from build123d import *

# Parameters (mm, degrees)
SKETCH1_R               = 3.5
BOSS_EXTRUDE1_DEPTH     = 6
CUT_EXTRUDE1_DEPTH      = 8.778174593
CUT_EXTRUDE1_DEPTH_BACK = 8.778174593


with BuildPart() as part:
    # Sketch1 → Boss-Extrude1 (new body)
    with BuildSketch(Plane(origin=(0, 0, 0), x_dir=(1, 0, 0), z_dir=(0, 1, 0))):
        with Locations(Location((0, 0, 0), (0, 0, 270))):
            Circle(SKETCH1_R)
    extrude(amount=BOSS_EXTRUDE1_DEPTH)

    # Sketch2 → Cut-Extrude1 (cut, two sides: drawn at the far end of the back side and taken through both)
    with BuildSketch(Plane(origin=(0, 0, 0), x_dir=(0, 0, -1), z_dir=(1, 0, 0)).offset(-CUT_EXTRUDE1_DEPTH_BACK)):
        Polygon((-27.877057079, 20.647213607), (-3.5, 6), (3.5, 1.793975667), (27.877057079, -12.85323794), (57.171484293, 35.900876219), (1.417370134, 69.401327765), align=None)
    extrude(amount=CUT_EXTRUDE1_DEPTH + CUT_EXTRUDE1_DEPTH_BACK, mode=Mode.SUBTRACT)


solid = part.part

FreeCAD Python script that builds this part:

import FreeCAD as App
import Part
import Sketcher
from FreeCAD import Vector
Q = App.Units.Quantity

doc = App.newDocument("Part")
body = doc.addObject("PartDesign::Body", "Body")

sketch1 = body.newObject("Sketcher::SketchObject", "Sketch")
sketch1.AttachmentSupport = (doc.getObject("XZ_Plane"), [""])
sketch1.MapMode = "FlatFace"
sketch1.addGeometry(Part.Circle(Vector(0, 0, 0), Vector(0, 0, 1), 3.5), False)
sketch1.addConstraint(Sketcher.Constraint("Coincident", 0, 3, -1, 1))
sketch1.addConstraint(Sketcher.Constraint("Diameter", 0, Q("7 mm")))
pad1 = body.newObject("PartDesign::Pad", "Pad")
pad1.Profile = sketch1
pad1.Length = 6
pad1.Reversed = True

sketch2 = body.newObject("Sketcher::SketchObject", "Sketch001")
sketch2.AttachmentSupport = (doc.getObject("YZ_Plane"), [""])
sketch2.MapMode = "FlatFace"
sketch2.addGeometry(Part.LineSegment(Vector(21, 28, 0), Vector(6, 4, 0)), False)
sketch2.addGeometry(Part.LineSegment(Vector(6, 4, 0), Vector(2, -4, 0)), False)
sketch2.addGeometry(Part.LineSegment(Vector(2, -4, 0), Vector(-13, -28, 0)), False)
sketch2.addGeometry(Part.LineSegment(Vector(-13, -28, 0), Vector(36, -57, 0)), False)
sketch2.addGeometry(Part.LineSegment(Vector(36, -57, 0), Vector(69, -1, 0)), False)
sketch2.addGeometry(Part.LineSegment(Vector(69, -1, 0), Vector(21, 28, 0)), False)
sketch2.addConstraint(Sketcher.Constraint("Coincident", 0, 2, 1, 1))
sketch2.addConstraint(Sketcher.Constraint("Coincident", 1, 2, 2, 1))
sketch2.addConstraint(Sketcher.Constraint("Coincident", 2, 2, 3, 1))
sketch2.addConstraint(Sketcher.Constraint("Coincident", 3, 2, 4, 1))
sketch2.addConstraint(Sketcher.Constraint("Coincident", 4, 2, 5, 1))
sketch2.addConstraint(Sketcher.Constraint("Coincident", 5, 2, 0, 1))
sketch2.addConstraint(Sketcher.Constraint("Parallel", 0, 1))
sketch2.addConstraint(Sketcher.Constraint("Parallel", 1, 2))
sketch2.addConstraint(Sketcher.Constraint("Perpendicular", 2, 3))
sketch2.addConstraint(Sketcher.Constraint("Perpendicular", 3, 4))
sketch2.addConstraint(Sketcher.Constraint("Perpendicular", 4, 5))
sketch2.addConstraint(Sketcher.Constraint("Equal", 0, 2))
sketch2.addConstraint(Sketcher.Constraint("Angle", 0, Q("-121 deg")))
sketch2.addConstraint(Sketcher.Constraint("DistanceX", -1, 1, 0, 2, Q("6 mm")))
sketch2.addConstraint(Sketcher.Constraint("DistanceY", 1, 2, 0, 2, Q("7 mm")))
sketch2.addConstraint(Sketcher.Constraint("DistanceY", -1, 1, 0, 2, Q("3.5 mm")))
sketch2.addConstraint(Sketcher.Constraint("DistanceX", 1, 2, 3, 2, Q("34.106901 mm")))
sketch2.addConstraint(Sketcher.Constraint("Distance", 0, Q("28.439089 mm")))
pocket1 = body.newObject("PartDesign::Pocket", "Pocket")
pocket1.Profile = sketch2
pocket1.Type = "ThroughAll"
pocket1.Midplane = True

doc.recompute()
